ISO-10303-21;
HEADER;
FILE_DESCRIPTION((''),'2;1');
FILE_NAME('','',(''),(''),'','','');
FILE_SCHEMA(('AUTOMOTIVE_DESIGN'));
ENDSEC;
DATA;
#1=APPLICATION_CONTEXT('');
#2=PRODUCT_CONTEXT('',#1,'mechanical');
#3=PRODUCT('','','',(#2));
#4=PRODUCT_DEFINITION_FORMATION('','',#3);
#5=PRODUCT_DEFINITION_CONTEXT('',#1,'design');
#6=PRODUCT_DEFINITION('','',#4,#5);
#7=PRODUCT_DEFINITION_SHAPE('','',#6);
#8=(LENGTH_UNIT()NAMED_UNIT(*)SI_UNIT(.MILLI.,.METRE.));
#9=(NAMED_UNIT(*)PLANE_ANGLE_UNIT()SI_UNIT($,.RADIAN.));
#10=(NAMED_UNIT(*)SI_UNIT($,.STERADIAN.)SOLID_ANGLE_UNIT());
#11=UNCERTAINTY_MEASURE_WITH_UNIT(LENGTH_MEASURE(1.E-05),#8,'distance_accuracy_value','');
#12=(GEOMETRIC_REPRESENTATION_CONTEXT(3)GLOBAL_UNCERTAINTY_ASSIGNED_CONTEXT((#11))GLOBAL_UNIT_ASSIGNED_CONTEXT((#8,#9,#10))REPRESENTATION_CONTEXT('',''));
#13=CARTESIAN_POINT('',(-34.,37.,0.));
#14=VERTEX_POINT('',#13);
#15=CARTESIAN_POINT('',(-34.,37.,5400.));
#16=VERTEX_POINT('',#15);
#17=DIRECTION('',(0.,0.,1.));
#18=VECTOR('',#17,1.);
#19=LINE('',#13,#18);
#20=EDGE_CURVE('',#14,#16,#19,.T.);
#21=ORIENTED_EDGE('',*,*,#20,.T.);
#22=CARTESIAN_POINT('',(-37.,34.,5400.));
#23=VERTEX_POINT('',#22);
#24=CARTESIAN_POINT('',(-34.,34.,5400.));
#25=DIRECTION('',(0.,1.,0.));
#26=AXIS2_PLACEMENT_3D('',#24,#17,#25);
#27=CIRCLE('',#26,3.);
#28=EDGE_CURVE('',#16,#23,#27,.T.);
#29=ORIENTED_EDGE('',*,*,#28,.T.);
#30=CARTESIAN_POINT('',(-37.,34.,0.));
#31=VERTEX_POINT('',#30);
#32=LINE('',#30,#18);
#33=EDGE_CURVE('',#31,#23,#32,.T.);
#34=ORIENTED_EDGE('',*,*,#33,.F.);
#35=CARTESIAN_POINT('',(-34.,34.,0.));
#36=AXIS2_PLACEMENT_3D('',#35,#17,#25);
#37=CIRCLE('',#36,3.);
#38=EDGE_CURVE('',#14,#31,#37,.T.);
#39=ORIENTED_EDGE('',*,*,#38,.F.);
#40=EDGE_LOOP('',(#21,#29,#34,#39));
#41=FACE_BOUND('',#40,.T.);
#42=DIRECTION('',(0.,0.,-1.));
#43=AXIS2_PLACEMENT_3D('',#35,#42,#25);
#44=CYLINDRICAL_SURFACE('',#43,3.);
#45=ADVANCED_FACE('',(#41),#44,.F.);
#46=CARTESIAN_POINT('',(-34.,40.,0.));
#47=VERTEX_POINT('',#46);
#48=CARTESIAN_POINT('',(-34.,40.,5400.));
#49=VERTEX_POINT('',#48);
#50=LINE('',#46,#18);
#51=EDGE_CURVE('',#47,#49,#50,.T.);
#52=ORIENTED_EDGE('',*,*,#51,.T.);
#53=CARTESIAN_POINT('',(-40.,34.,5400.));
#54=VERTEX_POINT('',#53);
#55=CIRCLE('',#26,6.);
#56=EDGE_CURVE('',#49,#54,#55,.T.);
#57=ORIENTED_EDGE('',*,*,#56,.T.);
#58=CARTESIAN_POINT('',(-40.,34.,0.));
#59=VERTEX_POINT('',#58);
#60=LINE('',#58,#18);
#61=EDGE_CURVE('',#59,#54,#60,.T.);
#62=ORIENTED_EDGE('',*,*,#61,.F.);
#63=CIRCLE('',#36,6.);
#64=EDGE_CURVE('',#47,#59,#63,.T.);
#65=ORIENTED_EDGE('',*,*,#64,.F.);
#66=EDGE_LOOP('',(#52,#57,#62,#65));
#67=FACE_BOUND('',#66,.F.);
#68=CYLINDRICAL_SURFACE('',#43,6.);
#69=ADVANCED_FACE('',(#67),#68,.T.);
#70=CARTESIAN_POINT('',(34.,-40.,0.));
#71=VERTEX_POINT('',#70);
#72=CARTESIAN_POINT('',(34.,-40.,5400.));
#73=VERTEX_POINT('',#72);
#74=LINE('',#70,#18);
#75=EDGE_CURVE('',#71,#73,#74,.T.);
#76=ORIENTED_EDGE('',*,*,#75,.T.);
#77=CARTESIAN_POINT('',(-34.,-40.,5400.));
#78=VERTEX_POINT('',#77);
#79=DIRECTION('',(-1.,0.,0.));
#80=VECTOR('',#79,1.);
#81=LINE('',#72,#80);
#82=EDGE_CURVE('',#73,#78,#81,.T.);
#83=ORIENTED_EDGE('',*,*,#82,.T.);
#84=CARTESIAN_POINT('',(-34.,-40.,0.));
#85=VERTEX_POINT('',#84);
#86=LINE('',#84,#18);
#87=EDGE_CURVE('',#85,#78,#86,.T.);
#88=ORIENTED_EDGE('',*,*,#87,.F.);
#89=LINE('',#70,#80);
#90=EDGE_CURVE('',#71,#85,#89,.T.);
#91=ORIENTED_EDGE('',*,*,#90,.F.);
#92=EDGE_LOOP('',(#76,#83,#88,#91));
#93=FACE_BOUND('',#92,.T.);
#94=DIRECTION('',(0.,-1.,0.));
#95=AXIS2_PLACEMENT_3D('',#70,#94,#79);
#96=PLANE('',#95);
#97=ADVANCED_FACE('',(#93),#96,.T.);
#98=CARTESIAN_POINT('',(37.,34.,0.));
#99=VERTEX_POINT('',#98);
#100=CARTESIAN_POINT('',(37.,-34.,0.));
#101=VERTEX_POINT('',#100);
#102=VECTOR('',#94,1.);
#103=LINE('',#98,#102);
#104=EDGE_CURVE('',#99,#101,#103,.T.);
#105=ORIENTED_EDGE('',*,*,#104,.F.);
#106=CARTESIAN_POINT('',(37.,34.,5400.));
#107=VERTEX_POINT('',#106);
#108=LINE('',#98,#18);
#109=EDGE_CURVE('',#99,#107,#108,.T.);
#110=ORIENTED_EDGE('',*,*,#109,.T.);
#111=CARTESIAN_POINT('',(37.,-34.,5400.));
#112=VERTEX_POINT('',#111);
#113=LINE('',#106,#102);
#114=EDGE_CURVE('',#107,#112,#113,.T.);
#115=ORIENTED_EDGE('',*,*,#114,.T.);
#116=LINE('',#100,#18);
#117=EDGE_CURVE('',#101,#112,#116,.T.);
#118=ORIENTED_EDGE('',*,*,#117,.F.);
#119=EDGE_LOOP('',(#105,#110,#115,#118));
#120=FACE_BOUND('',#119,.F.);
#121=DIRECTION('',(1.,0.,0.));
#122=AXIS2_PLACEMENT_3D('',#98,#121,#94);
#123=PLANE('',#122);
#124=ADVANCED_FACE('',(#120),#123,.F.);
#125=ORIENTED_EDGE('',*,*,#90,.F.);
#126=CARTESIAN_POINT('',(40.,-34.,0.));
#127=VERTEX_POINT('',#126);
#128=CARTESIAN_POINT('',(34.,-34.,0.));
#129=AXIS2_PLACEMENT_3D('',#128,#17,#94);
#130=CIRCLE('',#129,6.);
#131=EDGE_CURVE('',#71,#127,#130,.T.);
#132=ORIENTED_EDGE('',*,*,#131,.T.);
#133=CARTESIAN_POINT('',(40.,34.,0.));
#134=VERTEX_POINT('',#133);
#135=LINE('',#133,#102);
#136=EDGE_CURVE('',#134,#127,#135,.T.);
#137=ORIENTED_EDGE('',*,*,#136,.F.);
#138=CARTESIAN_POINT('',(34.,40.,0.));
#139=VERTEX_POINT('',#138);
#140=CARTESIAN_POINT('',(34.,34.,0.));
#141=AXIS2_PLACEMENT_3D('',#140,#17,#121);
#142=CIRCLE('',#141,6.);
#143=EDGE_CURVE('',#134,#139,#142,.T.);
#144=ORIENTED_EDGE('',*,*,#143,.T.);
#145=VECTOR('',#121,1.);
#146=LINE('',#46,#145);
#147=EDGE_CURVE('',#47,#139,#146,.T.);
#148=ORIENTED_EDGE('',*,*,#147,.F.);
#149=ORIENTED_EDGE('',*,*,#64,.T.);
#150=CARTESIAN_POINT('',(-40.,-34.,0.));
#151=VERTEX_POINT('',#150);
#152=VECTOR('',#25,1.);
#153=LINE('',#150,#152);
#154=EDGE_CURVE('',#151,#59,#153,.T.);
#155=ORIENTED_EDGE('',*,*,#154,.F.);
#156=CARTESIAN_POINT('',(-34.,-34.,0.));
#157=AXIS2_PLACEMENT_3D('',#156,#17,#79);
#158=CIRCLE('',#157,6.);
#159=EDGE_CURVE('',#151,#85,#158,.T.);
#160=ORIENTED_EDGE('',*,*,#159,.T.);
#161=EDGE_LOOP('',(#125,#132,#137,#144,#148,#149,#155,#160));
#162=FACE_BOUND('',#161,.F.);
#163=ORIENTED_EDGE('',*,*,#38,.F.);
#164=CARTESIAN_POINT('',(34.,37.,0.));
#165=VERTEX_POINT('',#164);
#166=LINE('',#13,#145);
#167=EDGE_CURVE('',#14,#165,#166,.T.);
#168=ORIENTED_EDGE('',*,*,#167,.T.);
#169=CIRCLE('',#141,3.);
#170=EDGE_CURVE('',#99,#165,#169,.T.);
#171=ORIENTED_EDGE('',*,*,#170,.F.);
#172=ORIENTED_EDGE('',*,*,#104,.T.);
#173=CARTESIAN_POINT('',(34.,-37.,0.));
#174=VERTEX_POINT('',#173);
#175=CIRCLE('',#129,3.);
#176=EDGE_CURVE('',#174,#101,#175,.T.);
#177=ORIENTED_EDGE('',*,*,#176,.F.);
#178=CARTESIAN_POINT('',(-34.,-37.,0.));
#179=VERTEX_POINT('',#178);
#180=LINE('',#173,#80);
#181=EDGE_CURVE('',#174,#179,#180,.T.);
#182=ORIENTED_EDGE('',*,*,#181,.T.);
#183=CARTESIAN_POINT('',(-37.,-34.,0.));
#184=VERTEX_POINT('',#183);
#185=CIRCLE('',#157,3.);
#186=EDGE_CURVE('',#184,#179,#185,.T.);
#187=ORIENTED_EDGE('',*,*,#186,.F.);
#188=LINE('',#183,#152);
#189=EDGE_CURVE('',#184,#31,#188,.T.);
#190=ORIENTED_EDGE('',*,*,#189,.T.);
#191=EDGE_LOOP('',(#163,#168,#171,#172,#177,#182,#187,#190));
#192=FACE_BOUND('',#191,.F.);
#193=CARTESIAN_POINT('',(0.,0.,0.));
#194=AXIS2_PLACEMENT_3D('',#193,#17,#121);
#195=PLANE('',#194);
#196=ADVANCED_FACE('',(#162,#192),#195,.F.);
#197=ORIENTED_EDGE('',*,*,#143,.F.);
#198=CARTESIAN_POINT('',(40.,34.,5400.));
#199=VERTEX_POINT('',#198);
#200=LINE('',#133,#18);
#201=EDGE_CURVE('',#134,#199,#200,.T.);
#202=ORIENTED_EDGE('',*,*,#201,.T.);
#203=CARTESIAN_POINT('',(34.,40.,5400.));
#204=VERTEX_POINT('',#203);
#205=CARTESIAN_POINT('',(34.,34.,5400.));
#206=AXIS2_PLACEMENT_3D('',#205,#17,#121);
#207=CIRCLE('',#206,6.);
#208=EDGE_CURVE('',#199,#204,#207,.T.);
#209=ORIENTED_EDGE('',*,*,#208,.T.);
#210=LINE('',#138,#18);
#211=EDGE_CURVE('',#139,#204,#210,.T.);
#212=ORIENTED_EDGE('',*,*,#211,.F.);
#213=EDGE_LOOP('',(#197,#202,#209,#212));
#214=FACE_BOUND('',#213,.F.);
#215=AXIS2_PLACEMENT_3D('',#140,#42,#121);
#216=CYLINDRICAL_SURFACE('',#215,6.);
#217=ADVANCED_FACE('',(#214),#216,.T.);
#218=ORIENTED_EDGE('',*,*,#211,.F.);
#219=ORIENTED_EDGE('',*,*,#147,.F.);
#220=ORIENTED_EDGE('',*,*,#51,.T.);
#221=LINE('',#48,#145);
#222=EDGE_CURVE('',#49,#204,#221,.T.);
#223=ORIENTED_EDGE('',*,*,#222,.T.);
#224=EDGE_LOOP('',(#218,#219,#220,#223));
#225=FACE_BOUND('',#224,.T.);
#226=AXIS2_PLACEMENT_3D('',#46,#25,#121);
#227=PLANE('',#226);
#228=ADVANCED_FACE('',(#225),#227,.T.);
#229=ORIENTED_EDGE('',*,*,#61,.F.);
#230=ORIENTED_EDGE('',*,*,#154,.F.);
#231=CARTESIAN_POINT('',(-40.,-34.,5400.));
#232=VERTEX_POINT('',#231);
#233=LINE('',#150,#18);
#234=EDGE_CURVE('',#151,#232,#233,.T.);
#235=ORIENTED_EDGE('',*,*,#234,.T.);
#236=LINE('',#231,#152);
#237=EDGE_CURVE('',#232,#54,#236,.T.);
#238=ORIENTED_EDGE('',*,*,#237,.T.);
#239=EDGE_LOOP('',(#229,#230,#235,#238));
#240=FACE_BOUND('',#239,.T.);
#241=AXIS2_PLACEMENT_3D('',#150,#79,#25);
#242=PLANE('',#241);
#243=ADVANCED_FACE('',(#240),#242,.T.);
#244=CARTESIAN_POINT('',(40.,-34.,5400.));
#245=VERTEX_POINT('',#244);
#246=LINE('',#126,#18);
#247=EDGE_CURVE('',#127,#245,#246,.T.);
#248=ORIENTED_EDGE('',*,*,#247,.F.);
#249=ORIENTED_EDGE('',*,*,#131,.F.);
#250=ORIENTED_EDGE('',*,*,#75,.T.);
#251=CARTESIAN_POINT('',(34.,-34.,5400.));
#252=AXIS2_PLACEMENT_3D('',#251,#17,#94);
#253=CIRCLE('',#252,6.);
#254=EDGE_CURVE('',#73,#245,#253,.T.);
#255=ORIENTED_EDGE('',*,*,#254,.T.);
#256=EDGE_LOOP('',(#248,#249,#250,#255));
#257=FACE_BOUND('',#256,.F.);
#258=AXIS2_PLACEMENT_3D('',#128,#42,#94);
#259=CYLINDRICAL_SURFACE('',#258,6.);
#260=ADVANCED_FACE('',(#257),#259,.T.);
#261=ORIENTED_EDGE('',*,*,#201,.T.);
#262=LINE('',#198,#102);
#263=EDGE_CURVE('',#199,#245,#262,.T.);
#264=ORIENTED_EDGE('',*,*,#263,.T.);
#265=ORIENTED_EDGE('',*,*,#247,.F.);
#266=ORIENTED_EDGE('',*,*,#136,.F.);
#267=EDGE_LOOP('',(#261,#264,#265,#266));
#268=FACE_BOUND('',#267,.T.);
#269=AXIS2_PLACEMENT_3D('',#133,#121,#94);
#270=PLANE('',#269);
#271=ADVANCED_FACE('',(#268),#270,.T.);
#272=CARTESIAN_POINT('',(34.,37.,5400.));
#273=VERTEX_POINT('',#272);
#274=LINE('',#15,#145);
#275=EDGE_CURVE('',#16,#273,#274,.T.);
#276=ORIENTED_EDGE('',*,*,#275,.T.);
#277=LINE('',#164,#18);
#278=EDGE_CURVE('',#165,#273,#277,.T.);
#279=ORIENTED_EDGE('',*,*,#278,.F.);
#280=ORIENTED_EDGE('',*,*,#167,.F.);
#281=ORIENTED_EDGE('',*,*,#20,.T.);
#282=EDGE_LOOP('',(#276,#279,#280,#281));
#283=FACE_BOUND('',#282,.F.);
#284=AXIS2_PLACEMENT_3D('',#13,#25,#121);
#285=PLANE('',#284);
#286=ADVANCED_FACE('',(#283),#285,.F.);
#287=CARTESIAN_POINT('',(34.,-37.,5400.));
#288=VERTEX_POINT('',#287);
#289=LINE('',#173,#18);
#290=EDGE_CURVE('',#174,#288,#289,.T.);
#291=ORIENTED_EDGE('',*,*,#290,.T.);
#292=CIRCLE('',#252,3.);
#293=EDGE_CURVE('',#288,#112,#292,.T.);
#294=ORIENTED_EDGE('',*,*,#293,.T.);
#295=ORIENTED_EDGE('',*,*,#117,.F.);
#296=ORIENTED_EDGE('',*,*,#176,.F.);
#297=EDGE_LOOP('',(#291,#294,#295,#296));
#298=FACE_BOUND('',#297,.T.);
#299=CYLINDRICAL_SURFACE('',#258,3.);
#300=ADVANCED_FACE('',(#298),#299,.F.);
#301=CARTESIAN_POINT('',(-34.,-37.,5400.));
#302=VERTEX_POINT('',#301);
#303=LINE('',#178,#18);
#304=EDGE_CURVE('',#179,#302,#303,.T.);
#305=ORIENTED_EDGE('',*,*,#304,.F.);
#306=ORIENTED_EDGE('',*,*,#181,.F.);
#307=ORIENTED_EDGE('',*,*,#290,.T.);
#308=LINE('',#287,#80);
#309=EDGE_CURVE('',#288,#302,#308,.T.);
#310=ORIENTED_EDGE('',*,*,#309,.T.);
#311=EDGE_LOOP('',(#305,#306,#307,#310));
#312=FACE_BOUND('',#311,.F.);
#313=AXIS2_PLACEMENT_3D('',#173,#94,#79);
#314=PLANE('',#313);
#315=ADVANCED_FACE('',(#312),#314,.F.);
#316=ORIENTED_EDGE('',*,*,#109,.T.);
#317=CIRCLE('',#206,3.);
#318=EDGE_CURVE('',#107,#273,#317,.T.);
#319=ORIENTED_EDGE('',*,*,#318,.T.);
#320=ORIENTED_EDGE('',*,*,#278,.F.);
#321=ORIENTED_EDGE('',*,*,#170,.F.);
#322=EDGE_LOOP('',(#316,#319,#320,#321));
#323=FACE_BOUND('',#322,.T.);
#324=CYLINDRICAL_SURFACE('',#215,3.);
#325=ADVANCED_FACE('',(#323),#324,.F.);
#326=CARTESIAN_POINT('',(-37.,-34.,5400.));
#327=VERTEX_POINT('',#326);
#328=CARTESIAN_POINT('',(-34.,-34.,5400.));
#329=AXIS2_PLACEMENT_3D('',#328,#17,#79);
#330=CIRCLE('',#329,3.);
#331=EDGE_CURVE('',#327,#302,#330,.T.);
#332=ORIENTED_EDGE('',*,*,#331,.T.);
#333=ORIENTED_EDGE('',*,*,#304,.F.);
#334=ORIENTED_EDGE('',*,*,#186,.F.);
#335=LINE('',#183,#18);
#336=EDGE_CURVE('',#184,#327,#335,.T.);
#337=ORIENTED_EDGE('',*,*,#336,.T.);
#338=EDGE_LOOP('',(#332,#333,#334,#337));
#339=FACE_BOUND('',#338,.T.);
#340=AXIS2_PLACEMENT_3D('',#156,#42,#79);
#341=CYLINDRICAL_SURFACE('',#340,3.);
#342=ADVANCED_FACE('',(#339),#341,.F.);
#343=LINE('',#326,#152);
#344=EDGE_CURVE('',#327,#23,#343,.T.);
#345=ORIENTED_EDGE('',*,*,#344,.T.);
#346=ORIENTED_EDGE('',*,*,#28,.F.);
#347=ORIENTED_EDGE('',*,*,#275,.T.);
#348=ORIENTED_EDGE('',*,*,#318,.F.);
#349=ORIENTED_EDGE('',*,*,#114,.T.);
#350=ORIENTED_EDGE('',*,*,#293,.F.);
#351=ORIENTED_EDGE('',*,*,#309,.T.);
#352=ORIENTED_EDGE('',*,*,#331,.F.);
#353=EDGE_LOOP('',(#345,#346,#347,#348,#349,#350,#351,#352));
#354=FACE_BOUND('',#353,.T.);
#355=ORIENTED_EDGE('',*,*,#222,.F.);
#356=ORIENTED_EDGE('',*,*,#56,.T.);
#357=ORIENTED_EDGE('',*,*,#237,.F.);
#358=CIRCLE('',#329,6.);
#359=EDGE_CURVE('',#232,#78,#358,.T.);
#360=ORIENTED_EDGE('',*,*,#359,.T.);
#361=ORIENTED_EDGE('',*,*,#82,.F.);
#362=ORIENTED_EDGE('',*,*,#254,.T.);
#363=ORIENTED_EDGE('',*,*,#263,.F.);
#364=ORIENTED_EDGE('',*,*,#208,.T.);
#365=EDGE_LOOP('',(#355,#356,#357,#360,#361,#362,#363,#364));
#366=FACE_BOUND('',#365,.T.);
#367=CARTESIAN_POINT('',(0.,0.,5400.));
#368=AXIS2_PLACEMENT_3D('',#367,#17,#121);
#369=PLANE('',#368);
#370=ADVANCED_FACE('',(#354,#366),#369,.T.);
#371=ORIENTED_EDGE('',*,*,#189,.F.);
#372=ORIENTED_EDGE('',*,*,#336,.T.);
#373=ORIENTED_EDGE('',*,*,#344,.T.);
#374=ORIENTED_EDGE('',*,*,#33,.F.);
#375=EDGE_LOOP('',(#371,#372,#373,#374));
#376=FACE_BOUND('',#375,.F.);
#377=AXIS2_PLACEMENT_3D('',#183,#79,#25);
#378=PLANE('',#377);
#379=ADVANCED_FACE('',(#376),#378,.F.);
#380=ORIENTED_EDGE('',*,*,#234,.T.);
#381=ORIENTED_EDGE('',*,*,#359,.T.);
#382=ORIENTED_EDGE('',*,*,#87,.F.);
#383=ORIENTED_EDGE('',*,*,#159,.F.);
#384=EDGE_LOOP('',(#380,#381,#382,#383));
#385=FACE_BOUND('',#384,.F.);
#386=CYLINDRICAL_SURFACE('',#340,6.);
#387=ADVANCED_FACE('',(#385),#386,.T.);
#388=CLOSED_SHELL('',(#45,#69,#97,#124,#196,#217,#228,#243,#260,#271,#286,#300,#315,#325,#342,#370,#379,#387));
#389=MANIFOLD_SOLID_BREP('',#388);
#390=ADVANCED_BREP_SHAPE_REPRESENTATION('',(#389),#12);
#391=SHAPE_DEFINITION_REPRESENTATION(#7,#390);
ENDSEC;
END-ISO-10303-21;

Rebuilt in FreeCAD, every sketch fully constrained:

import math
import FreeCAD as App
import Part
import Sketcher
from FreeCAD import Vector

doc = App.newDocument("Part")
body = doc.addObject("PartDesign::Body", "Body")

sketch1 = body.newObject("Sketcher::SketchObject", "Sketch")
sketch1.AttachmentSupport = (doc.getObject("XY_Plane"), [""])
sketch1.MapMode = "FlatFace"
sketch1.addGeometry(Part.LineSegment(Vector(-40, 34, 0), Vector(-40, -34, 0)), False)
sketch1.addGeometry(Part.ArcOfCircle(Part.Circle(Vector(-34, -34, 0), Vector(0, 0, 1), 6), math.radians(180), math.radians(270)), False)
sketch1.addGeometry(Part.LineSegment(Vector(-34, -40, 0), Vector(34, -40, 0)), False)
sketch1.addGeometry(Part.ArcOfCircle(Part.Circle(Vector(34, -34, 0), Vector(0, 0, 1), 6), math.radians(-90), math.radians(0)), False)
sketch1.addGeometry(Part.LineSegment(Vector(40, -34, 0), Vector(40, 34, 0)), False)
sketch1.addGeometry(Part.ArcOfCircle(Part.Circle(Vector(34, 34, 0), Vector(0, 0, 1), 6), math.radians(0), math.radians(90)), False)
sketch1.addGeometry(Part.LineSegment(Vector(34, 40, 0), Vector(-34, 40, 0)), False)
sketch1.addGeometry(Part.ArcOfCircle(Part.Circle(Vector(-34, 34, 0), Vector(0, 0, 1), 6), math.radians(90), math.radians(180)), False)
sketch1.addGeometry(Part.ArcOfCircle(Part.Circle(Vector(-34, 34, 0), Vector(0, 0, 1), 3), math.radians(90), math.radians(180)), False)
sketch1.addGeometry(Part.LineSegment(Vector(-34, 37, 0), Vector(34, 37, 0)), False)
sketch1.addGeometry(Part.ArcOfCircle(Part.Circle(Vector(34, 34, 0), Vector(0, 0, 1), 3), math.radians(0), math.radians(90)), False)
sketch1.addGeometry(Part.LineSegment(Vector(37, 34, 0), Vector(37, -34, 0)), False)
sketch1.addGeometry(Part.ArcOfCircle(Part.Circle(Vector(34, -34, 0), Vector(0, 0, 1), 3), math.radians(-90), math.radians(0)), False)
sketch1.addGeometry(Part.LineSegment(Vector(34, -37, 0), Vector(-34, -37, 0)), False)
sketch1.addGeometry(Part.ArcOfCircle(Part.Circle(Vector(-34, -34, 0), Vector(0, 0, 1), 3), math.radians(180), math.radians(270)), False)
sketch1.addGeometry(Part.LineSegment(Vector(-37, -34, 0), Vector(-37, 34, 0)), False)
sketch1.addConstraint(Sketcher.Constraint("Tangent", 0, 2, 1, 1))
sketch1.addConstraint(Sketcher.Constraint("Tangent", 1, 2, 2, 1))
sketch1.addConstraint(Sketcher.Constraint("Tangent", 2, 2, 3, 1))
sketch1.addConstraint(Sketcher.Constraint("Tangent", 3, 2, 4, 1))
sketch1.addConstraint(Sketcher.Constraint("Tangent", 4, 2, 5, 1))
sketch1.addConstraint(Sketcher.Constraint("Tangent", 5, 2, 6, 1))
sketch1.addConstraint(Sketcher.Constraint("Tangent", 6, 2, 7, 1))
sketch1.addConstraint(Sketcher.Constraint("Tangent", 7, 2, 0, 1))
sketch1.addConstraint(Sketcher.Constraint("Tangent", 8, 1, 9, 1))
sketch1.addConstraint(Sketcher.Constraint("Tangent", 9, 2, 10, 2))
sketch1.addConstraint(Sketcher.Constraint("Tangent", 10, 1, 11, 1))
sketch1.addConstraint(Sketcher.Constraint("Tangent", 11, 2, 12, 2))
sketch1.addConstraint(Sketcher.Constraint("Tangent", 12, 1, 13, 1))
sketch1.addConstraint(Sketcher.Constraint("Tangent", 13, 2, 14, 2))
sketch1.addConstraint(Sketcher.Constraint("Tangent", 14, 1, 15, 1))
sketch1.addConstraint(Sketcher.Constraint("Tangent", 15, 2, 8, 2))
sketch1.addConstraint(Sketcher.Constraint("Vertical", 0))
sketch1.addConstraint(Sketcher.Constraint("Horizontal", 2))
sketch1.addConstraint(Sketcher.Constraint("Vertical", 4))
sketch1.addConstraint(Sketcher.Constraint("Horizontal", 6))
sketch1.addConstraint(Sketcher.Constraint("Horizontal", 9))
sketch1.addConstraint(Sketcher.Constraint("Vertical", 11))
sketch1.addConstraint(Sketcher.Constraint("Horizontal", 13))
sketch1.addConstraint(Sketcher.Constraint("Vertical", 15))
sketch1.addConstraint(Sketcher.Constraint("Coincident", 8, 3, 7, 3))
sketch1.addConstraint(Sketcher.Constraint("Coincident", 10, 3, 5, 3))
sketch1.addConstraint(Sketcher.Constraint("Coincident", 12, 3, 3, 3))
sketch1.addConstraint(Sketcher.Constraint("Equal", 1, 3))
sketch1.addConstraint(Sketcher.Constraint("Equal", 3, 5))
sketch1.addConstraint(Sketcher.Constraint("Equal", 5, 7))
sketch1.addConstraint(Sketcher.Constraint("Equal", 12, 14))
sketch1.addConstraint(Sketcher.Constraint("Symmetric", 1, 3, 5, 3, -1, 1))
sketch1.addConstraint(Sketcher.Constraint("Equal", 13, 0))
sketch1.addConstraint(Sketcher.Constraint("Radius", 1, 6.0))
sketch1.addConstraint(Sketcher.Constraint("Radius", 8, 3.0))
sketch1.addConstraint(Sketcher.Constraint("DistanceX", 0, 2, -1, 1, 40.0))
pad1 = body.newObject("PartDesign::Pad", "Pad")
pad1.Profile = sketch1
pad1.Length = 5400

doc.recompute()
